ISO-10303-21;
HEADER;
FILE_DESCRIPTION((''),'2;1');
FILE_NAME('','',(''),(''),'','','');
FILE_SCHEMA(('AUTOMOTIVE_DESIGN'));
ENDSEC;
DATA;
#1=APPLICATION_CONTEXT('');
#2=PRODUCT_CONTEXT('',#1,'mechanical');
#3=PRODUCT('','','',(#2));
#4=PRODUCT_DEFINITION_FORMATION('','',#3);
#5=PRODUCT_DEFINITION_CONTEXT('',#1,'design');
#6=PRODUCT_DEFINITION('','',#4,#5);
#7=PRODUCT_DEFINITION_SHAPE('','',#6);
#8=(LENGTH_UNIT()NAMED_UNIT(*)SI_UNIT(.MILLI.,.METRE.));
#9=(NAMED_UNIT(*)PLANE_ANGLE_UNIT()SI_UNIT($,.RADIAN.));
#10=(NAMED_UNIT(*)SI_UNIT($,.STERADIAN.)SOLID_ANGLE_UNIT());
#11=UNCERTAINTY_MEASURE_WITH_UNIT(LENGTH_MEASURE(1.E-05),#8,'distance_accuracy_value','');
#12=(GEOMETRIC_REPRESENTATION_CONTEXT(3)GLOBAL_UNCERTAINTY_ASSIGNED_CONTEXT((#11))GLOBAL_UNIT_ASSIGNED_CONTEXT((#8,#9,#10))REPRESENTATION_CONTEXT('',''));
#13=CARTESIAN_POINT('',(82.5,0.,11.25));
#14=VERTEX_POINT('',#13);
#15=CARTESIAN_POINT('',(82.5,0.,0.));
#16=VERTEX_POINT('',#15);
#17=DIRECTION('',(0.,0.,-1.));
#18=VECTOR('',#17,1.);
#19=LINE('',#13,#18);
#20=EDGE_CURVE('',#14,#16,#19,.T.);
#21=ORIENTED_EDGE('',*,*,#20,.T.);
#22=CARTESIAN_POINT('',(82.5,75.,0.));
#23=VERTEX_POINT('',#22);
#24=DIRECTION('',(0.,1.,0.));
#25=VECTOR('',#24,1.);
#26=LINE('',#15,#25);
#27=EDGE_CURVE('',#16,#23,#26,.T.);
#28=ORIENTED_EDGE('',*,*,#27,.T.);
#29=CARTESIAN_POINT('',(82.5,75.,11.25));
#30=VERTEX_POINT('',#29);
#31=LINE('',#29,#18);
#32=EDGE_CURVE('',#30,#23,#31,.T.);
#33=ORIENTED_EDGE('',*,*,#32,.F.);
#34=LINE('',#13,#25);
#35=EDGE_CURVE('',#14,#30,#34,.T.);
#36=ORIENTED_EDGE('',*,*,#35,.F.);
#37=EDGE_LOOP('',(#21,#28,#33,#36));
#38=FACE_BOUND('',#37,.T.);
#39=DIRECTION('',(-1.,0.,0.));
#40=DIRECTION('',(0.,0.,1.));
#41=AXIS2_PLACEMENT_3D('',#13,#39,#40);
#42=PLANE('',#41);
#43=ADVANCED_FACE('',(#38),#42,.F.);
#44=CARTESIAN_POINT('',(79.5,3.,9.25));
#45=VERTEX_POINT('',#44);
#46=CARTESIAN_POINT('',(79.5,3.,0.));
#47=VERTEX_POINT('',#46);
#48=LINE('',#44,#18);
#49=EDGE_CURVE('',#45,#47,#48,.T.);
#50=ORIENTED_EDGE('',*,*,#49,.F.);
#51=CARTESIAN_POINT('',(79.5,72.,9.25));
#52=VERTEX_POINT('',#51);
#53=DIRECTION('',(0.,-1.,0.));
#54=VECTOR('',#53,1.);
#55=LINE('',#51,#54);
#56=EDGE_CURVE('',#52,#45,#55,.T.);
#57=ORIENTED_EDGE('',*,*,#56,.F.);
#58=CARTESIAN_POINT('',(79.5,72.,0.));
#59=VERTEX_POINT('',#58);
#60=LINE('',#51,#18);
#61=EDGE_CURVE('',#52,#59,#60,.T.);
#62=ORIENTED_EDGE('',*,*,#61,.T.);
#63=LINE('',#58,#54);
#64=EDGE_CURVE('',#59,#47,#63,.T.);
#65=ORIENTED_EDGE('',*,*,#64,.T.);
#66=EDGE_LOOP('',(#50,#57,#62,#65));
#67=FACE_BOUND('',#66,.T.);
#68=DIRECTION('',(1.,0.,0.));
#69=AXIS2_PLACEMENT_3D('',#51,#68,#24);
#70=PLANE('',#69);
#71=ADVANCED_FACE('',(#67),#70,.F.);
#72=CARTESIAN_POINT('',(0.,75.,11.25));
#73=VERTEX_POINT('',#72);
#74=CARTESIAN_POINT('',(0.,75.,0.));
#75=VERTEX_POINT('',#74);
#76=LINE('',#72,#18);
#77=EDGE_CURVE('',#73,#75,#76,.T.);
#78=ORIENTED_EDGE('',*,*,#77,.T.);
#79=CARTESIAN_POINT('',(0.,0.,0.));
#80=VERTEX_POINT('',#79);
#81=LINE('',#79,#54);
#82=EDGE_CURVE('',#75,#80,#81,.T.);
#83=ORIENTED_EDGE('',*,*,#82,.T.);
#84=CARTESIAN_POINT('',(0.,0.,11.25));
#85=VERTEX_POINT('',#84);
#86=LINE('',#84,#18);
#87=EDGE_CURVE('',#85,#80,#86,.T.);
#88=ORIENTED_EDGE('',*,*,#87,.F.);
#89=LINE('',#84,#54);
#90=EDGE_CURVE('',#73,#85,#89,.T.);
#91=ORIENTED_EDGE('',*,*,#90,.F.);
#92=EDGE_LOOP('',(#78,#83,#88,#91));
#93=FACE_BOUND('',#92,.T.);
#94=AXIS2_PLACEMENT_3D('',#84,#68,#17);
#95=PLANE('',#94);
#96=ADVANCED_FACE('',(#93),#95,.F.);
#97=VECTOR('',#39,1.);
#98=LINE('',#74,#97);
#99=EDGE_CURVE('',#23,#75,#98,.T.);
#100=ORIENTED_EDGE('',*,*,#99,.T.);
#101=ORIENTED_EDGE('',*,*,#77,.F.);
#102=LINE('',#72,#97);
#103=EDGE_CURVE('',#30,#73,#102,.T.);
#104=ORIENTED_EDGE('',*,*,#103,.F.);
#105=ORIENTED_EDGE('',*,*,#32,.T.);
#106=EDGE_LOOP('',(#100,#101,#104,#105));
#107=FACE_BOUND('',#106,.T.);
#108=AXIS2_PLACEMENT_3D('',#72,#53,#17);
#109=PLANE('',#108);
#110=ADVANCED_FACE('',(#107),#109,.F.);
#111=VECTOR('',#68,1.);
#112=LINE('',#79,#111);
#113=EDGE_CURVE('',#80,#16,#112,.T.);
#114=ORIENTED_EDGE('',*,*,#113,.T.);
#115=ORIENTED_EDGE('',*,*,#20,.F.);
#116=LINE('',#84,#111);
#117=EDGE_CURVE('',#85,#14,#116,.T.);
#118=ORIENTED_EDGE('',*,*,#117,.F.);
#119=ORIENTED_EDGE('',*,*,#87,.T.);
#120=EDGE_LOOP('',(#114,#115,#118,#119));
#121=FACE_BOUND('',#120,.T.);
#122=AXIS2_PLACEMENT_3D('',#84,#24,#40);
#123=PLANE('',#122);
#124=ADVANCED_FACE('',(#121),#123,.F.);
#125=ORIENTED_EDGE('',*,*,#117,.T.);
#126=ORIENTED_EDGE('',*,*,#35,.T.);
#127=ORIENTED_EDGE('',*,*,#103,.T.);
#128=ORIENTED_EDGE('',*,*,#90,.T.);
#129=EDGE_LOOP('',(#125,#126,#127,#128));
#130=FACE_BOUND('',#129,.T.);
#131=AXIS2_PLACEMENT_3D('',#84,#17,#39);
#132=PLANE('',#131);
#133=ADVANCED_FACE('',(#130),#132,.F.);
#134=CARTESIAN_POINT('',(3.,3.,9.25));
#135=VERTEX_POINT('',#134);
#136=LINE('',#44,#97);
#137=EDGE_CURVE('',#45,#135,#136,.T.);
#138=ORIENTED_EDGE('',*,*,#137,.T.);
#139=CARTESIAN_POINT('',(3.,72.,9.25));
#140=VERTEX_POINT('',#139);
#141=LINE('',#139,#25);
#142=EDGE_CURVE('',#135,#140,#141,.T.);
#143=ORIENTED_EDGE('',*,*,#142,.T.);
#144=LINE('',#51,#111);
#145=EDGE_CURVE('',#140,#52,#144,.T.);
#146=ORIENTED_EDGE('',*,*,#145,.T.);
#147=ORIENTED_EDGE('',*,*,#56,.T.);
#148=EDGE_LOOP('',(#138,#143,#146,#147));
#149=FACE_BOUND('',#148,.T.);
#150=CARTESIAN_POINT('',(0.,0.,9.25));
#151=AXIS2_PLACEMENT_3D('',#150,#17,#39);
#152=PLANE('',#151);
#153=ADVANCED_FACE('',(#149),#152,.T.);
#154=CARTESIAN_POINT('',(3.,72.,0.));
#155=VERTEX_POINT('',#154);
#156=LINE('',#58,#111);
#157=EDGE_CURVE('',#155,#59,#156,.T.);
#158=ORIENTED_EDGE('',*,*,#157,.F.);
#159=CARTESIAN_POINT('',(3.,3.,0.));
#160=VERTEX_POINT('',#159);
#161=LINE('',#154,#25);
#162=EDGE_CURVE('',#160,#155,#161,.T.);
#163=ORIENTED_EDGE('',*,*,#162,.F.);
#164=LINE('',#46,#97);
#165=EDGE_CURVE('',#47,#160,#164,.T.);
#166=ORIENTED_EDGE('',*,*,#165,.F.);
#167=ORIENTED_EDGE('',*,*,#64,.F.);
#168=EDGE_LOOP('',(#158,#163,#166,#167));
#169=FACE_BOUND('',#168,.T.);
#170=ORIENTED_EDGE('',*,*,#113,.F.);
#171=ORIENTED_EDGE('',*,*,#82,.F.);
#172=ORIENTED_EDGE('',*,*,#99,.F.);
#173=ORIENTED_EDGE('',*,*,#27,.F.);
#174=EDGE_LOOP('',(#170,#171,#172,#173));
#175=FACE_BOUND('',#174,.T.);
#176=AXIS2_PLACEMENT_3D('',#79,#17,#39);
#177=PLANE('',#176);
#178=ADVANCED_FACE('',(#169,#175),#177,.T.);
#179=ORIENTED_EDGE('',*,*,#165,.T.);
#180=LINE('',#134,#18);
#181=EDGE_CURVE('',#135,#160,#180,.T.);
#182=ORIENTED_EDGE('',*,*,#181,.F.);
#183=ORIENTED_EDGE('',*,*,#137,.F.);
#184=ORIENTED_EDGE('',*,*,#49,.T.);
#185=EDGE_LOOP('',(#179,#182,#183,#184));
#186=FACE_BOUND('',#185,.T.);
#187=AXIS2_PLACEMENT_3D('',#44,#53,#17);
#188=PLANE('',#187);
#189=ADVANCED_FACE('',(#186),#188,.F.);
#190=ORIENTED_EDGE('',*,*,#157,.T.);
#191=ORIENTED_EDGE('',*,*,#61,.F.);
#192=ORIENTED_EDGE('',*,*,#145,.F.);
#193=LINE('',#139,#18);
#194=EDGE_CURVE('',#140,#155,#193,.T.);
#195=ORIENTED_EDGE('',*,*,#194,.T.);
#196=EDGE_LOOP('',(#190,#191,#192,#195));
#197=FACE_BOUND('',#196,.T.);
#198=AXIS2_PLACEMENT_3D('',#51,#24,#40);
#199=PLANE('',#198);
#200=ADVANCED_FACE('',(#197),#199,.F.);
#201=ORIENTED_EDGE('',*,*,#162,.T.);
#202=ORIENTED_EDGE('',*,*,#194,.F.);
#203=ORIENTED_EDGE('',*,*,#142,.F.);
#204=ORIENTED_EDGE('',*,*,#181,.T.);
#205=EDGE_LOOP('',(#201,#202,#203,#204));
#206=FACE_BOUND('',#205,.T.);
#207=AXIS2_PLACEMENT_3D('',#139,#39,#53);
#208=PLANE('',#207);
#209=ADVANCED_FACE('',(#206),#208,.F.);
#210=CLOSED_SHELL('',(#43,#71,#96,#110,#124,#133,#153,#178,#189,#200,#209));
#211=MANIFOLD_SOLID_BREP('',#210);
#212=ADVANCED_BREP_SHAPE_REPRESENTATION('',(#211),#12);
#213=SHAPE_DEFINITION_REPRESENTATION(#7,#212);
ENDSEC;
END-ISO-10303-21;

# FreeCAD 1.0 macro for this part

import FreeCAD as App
import Part
import Sketcher
from FreeCAD import Vector


def add_polygon(sketch, points):
    """Adds a closed chain of lines whose ends are joined by coincident constraints."""
    first, n = sketch.GeometryCount, len(points)
    for a, b in zip(points, points[1:] + points[:1]):
        sketch.addGeometry(Part.LineSegment(App.Vector(*a, 0), App.Vector(*b, 0)), False)
    for i in range(n):
        sketch.addConstraint(Sketcher.Constraint("Coincident", first + i, 2, first + (i + 1) % n, 1))

doc = App.newDocument("Part")
body = doc.addObject("PartDesign::Body", "Body")

# Sketch on XY plane
sketch1 = body.newObject("Sketcher::SketchObject", "Sketch")
sketch1.AttachmentSupport = (doc.getObject("XY_Plane"), [""])
sketch1.MapMode = "FlatFace"
add_polygon(sketch1, [(0, 75), (0, 0), (82.5, 0), (82.5, 75)])  # lines 0-3
sketch1.addConstraint([
    Sketcher.Constraint("Vertical", 0),
    Sketcher.Constraint("Horizontal", 1),
    Sketcher.Constraint("Vertical", 2),
    Sketcher.Constraint("Horizontal", 3),
    Sketcher.Constraint("Coincident", 0, 2, -1, 1),
    Sketcher.Constraint("DistanceY", 0, 2, 0, 1, 75.0),
    Sketcher.Constraint("DistanceX", 1, 1, 1, 2, 82.5),
])
pad1 = body.newObject("PartDesign::Pad", "Pad")
pad1.Profile = sketch1
pad1.Length = 11.25

# Sketch on XY plane
sketch2 = body.newObject("Sketcher::SketchObject", "Sketch001")
sketch2.AttachmentSupport = (doc.getObject("XY_Plane"), [""])
sketch2.MapMode = "FlatFace"
add_polygon(sketch2, [(79.5, 72), (79.5, 3), (3, 3), (3, 72)])  # lines 0-3
sketch2.addConstraint([
    Sketcher.Constraint("Vertical", 0),
    Sketcher.Constraint("Horizontal", 1),
    Sketcher.Constraint("Vertical", 2),
    Sketcher.Constraint("Horizontal", 3),
    Sketcher.Constraint("DistanceY", 0, 2, 0, 1, 69.0),
    Sketcher.Constraint("DistanceX", 1, 2, 1, 1, 76.5),
    Sketcher.Constraint("DistanceY", -1, 1, 0, 2, 3.0),
    Sketcher.Constraint("DistanceX", -1, 1, 1, 2, 3.0),
])
pocket1 = body.newObject("PartDesign::Pocket", "Pocket")
pocket1.Profile = sketch2
pocket1.Length = 9.25
pocket1.Reversed = True

doc.recompute()
